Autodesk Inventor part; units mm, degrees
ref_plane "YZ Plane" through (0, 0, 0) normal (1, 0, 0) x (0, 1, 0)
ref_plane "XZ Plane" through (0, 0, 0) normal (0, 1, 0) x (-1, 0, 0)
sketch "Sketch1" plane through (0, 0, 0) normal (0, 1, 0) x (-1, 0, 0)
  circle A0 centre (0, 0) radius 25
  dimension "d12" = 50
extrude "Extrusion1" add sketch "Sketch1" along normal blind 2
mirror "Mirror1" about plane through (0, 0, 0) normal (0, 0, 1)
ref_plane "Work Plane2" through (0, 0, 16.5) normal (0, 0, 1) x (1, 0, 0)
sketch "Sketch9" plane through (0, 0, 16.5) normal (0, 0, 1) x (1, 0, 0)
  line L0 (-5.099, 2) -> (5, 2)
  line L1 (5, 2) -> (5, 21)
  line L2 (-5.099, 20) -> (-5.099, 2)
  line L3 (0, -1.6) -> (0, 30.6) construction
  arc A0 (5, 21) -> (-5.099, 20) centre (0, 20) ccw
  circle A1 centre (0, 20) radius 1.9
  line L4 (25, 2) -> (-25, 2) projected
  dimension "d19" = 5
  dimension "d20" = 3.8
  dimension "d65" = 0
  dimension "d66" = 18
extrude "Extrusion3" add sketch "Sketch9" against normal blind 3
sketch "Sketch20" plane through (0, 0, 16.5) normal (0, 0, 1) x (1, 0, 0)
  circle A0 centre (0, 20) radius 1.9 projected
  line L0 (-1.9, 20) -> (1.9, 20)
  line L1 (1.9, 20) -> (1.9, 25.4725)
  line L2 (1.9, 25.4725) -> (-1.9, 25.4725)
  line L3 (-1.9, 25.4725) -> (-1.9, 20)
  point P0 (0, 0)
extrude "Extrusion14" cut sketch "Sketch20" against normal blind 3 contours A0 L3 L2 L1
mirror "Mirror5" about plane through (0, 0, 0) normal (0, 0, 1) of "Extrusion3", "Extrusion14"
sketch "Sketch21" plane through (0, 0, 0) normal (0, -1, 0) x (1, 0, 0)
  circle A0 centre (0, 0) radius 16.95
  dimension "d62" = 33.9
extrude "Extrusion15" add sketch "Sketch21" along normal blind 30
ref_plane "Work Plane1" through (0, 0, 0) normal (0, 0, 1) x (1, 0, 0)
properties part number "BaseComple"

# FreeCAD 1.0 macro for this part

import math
import FreeCAD as App
import Part
import Sketcher
from FreeCAD import Vector

doc = App.newDocument("Part")
params = doc.addObject("Spreadsheet::Sheet", "Params")
for row, (alias, value) in enumerate([
    ("sketch1_diameter", "50 mm"),
    ("pad1_length", "2 mm"),
    ("sketch2_diameter", "3.8 mm"),
    ("sketch2_height", "18 mm"),
    ("sketch2_height2", "19 mm"),
    ("pad2_length", "3 mm"),
    ("sketch3_radius", "1.9 mm"),
    ("pocket1_length", "3 mm"),
    ("sketch4_diameter", "33.9 mm"),
    ("pad3_length", "30 mm"),
], start=1):
    params.set(f"A{row}", alias)
    params.set(f"B{row}", "=" + value)
    params.setAlias(f"B{row}", alias)

body = doc.addObject("PartDesign::Body", "Body")

# Sketch on XZ plane
sketch1 = body.newObject("Sketcher::SketchObject", "Sketch")
sketch1.AttachmentSupport = (doc.getObject("XZ_Plane"), [""])
sketch1.MapMode = "FlatFace"
sketch1.addGeometry(Part.Circle(Vector(0, 0, 0), Vector(0, 0, 1), 25), False)
sketch1.addConstraint([
    Sketcher.Constraint("Coincident", 0, 3, -1, 1),
    Sketcher.Constraint("Diameter", 0, 50.0),
])
sketch1.setExpression("Constraints[1]", "Params.sketch1_diameter")
pad1 = body.newObject("PartDesign::Pad", "Pad")
pad1.Profile = sketch1
pad1.setExpression("Length", "Params.pad1_length")
pad1.Reversed = True
doc.recompute()

mirrored = body.newObject("PartDesign::Mirrored", "Mirrored")
mirrored.TransformMode = "Transform body"
mirrored.MirrorPlane = (doc.getObject("XY_Plane"), [""])
body.Tip = mirrored

# Sketch on XY plane
sketch2 = body.newObject("Sketcher::SketchObject", "Sketch001")
sketch2.AttachmentSupport = (doc.getObject("XY_Plane"), [""])
sketch2.MapMode = "FlatFace"
sketch2.AttachmentOffset = App.Placement(Vector(0, 0, 16.5), App.Rotation())
sketch2.addGeometry([
    Part.LineSegment(Vector(-5.1, 20, 0), Vector(-5.1, 2, 0)),  # 0
    Part.LineSegment(Vector(-5.1, 2, 0), Vector(5, 2, 0)),  # 1
    Part.LineSegment(Vector(5, 2, 0), Vector(5, 21, 0)),  # 2
    Part.ArcOfCircle(Part.Circle(Vector(0, 20, 0), Vector(0, 0, 1), 5.1), math.radians(11), math.radians(180)),  # 3
    Part.Circle(Vector(0, 20, 0), Vector(0, 0, 1), 1.9),  # 4
], False)
sketch2.addConstraint([
    Sketcher.Constraint("Coincident", 0, 2, 1, 1),
    Sketcher.Constraint("Coincident", 1, 2, 2, 1),
    Sketcher.Constraint("Coincident", 2, 2, 3, 1),
    Sketcher.Constraint("Tangent", 3, 2, 0, 1),
    Sketcher.Constraint("Vertical", 0),
    Sketcher.Constraint("Horizontal", 1),
    Sketcher.Constraint("Vertical", 2),
    Sketcher.Constraint("Coincident", 4, 3, 3, 3),
    Sketcher.Constraint("PointOnObject", 3, 3, -2),
    Sketcher.Constraint("Diameter", 4, 3.8),
    Sketcher.Constraint("DistanceY", 0, 2, 0, 1, 18.0),
    Sketcher.Constraint("DistanceX", -1, 1, 1, 2, 5.0),
    Sketcher.Constraint("DistanceY", 2, 1, 2, 2, 19.0),
    Sketcher.Constraint("DistanceY", -1, 1, 3, 3, 20.0),
])
sketch2.setExpression("Constraints[9]", "Params.sketch2_diameter")
sketch2.setExpression("Constraints[10]", "Params.sketch2_height")
sketch2.setExpression("Constraints[12]", "Params.sketch2_height2")
pad2 = body.newObject("PartDesign::Pad", "Pad001")
pad2.Profile = sketch2
pad2.setExpression("Length", "Params.pad2_length")
pad2.Reversed = True

# Sketch on XY plane
sketch3 = body.newObject("Sketcher::SketchObject", "Sketch002")
sketch3.AttachmentSupport = (doc.getObject("XY_Plane"), [""])
sketch3.MapMode = "FlatFace"
sketch3.AttachmentOffset = App.Placement(Vector(0, 0, 16.5), App.Rotation())
sketch3.addGeometry([
    Part.ArcOfCircle(Part.Circle(Vector(0, 20, 0), Vector(0, 0, 1), 1.9), math.radians(0), math.radians(180)),
    Part.LineSegment(Vector(1.9, 20, 0), Vector(1.9, 25.5, 0)),
    Part.LineSegment(Vector(1.9, 25.5, 0), Vector(-1.9, 25.5, 0)),
    Part.LineSegment(Vector(-1.9, 25.5, 0), Vector(-1.9, 20, 0)),
], False)
sketch3.addConstraint([
    Sketcher.Constraint("Tangent", 0, 1, 1, 1),
    Sketcher.Constraint("Coincident", 1, 2, 2, 1),
    Sketcher.Constraint("Coincident", 2, 2, 3, 1),
    Sketcher.Constraint("Tangent", 3, 2, 0, 2),
    Sketcher.Constraint("Vertical", 1),
    Sketcher.Constraint("Horizontal", 2),
    Sketcher.Constraint("Vertical", 3),
    Sketcher.Constraint("PointOnObject", 0, 3, -2),
    Sketcher.Constraint("Radius", 0, 1.9),
    Sketcher.Constraint("DistanceY", -1, 1, 0, 3, 20.0),
    Sketcher.Constraint("DistanceY", 1, 1, 1, 2, 5.4725),
])
sketch3.setExpression("Constraints[8]", "Params.sketch3_radius")
pocket1 = body.newObject("PartDesign::Pocket", "Pocket")
pocket1.Profile = sketch3
pocket1.setExpression("Length", "Params.pocket1_length")
doc.recompute()

mirrored2 = body.newObject("PartDesign::Mirrored", "Mirrored001")
mirrored2.Originals = [pad2, pocket1]
mirrored2.MirrorPlane = (doc.getObject("XY_Plane"), [""])
body.Tip = mirrored2

# Sketch on XZ plane
sketch4 = body.newObject("Sketcher::SketchObject", "Sketch003")
sketch4.AttachmentSupport = (doc.getObject("XZ_Plane"), [""])
sketch4.MapMode = "FlatFace"
sketch4.addGeometry(Part.Circle(Vector(0, 0, 0), Vector(0, 0, 1), 17), False)
sketch4.addConstraint([
    Sketcher.Constraint("Coincident", 0, 3, -1, 1),
    Sketcher.Constraint("Diameter", 0, 33.9),
])
sketch4.setExpression("Constraints[1]", "Params.sketch4_diameter")
pad3 = body.newObject("PartDesign::Pad", "Pad002")
pad3.Profile = sketch4
pad3.setExpression("Length", "Params.pad3_length")

doc.recompute()
